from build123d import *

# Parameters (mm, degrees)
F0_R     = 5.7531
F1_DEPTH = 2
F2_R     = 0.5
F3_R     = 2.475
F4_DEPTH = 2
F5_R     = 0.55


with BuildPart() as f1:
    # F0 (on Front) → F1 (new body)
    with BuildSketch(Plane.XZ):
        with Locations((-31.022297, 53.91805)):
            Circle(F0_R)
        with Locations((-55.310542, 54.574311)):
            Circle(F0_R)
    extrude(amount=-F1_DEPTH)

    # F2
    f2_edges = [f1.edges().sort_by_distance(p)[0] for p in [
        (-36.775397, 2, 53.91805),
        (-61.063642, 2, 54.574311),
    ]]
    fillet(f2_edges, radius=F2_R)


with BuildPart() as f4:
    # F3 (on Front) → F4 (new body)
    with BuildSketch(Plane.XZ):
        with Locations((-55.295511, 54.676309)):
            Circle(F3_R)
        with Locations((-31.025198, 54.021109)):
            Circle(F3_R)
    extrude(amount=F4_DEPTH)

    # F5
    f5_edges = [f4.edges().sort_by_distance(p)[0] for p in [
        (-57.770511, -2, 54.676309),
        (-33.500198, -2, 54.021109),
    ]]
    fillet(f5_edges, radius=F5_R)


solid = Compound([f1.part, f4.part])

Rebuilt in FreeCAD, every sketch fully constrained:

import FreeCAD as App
import Part
import Sketcher
from FreeCAD import Vector


def edges_at(feature, points):
    """Names of the edges that pass closest to the given points."""
    edges = feature.Shape.Edges
    near = lambda p: min(range(len(edges)), key=lambda i: edges[i].distToShape(Part.Vertex(*p))[0])
    return sorted({f"Edge{near(p) + 1}" for p in points})

doc = App.newDocument("Part")
body = doc.addObject("PartDesign::Body", "Body")
body.AllowCompound = True

# Sketch on XZ plane
sketch1 = body.newObject("Sketcher::SketchObject", "Sketch")
sketch1.AttachmentSupport = (doc.getObject("XZ_Plane"), [""])
sketch1.MapMode = "FlatFace"
sketch1.addGeometry([
    Part.Circle(Vector(-31, 54, 0), Vector(0, 0, 1), 6),
    Part.Circle(Vector(-55, 55, 0), Vector(0, 0, 1), 6),
], False)
sketch1.addConstraint([
    Sketcher.Constraint("Equal", 0, 1),
    Sketcher.Constraint("Diameter", 0, 11.5062),
    Sketcher.Constraint("DistanceY", -1, 1, 0, 3, 53.91805),
    Sketcher.Constraint("DistanceX", 1, 3, -1, 1, 55.310542),
    Sketcher.Constraint("DistanceY", -1, 1, 1, 3, 54.574311),
    Sketcher.Constraint("DistanceX", 0, 3, -1, 1, 31.022297),
])
pad1 = body.newObject("PartDesign::Pad", "Pad")
pad1.Profile = sketch1
pad1.Length = 2
pad1.Reversed = True
doc.recompute()

fillet = body.newObject("PartDesign::Fillet", "Fillet")
fillet.Base = (pad1, edges_at(pad1, [(-36.775, 2, 53.918), (-61.064, 2, 54.574)]))
fillet.Radius = 0.5
body2 = doc.addObject("PartDesign::Body", "Body001")
body2.AllowCompound = True

# Sketch on XZ plane
sketch2 = body2.newObject("Sketcher::SketchObject", "Sketch001")
sketch2.AttachmentSupport = (doc.getObject("XZ_Plane001"), [""])
sketch2.MapMode = "FlatFace"
sketch2.addGeometry([
    Part.Circle(Vector(-55.3, 54.7, 0), Vector(0, 0, 1), 2.5),
    Part.Circle(Vector(-31, 54, 0), Vector(0, 0, 1), 2.5),
], False)
sketch2.addConstraint([
    Sketcher.Constraint("Equal", 0, 1),
    Sketcher.Constraint("Diameter", 0, 4.95),
    Sketcher.Constraint("DistanceY", 1, 3, 0, 3, 0.6552),
    Sketcher.Constraint("DistanceX", 0, 3, -1, 1, 55.295511),
    Sketcher.Constraint("DistanceY", -1, 1, 0, 3, 54.676309),
    Sketcher.Constraint("DistanceX", 1, 3, -1, 1, 31.025198),
])
pad2 = body2.newObject("PartDesign::Pad", "Pad001")
pad2.Profile = sketch2
pad2.Length = 2
doc.recompute()

fillet2 = body2.newObject("PartDesign::Fillet", "Fillet001")
fillet2.Base = (pad2, edges_at(pad2, [(-57.771, -2, 54.676), (-33.5, -2, 54.021)]))
fillet2.Radius = 0.55

doc.recompute()
